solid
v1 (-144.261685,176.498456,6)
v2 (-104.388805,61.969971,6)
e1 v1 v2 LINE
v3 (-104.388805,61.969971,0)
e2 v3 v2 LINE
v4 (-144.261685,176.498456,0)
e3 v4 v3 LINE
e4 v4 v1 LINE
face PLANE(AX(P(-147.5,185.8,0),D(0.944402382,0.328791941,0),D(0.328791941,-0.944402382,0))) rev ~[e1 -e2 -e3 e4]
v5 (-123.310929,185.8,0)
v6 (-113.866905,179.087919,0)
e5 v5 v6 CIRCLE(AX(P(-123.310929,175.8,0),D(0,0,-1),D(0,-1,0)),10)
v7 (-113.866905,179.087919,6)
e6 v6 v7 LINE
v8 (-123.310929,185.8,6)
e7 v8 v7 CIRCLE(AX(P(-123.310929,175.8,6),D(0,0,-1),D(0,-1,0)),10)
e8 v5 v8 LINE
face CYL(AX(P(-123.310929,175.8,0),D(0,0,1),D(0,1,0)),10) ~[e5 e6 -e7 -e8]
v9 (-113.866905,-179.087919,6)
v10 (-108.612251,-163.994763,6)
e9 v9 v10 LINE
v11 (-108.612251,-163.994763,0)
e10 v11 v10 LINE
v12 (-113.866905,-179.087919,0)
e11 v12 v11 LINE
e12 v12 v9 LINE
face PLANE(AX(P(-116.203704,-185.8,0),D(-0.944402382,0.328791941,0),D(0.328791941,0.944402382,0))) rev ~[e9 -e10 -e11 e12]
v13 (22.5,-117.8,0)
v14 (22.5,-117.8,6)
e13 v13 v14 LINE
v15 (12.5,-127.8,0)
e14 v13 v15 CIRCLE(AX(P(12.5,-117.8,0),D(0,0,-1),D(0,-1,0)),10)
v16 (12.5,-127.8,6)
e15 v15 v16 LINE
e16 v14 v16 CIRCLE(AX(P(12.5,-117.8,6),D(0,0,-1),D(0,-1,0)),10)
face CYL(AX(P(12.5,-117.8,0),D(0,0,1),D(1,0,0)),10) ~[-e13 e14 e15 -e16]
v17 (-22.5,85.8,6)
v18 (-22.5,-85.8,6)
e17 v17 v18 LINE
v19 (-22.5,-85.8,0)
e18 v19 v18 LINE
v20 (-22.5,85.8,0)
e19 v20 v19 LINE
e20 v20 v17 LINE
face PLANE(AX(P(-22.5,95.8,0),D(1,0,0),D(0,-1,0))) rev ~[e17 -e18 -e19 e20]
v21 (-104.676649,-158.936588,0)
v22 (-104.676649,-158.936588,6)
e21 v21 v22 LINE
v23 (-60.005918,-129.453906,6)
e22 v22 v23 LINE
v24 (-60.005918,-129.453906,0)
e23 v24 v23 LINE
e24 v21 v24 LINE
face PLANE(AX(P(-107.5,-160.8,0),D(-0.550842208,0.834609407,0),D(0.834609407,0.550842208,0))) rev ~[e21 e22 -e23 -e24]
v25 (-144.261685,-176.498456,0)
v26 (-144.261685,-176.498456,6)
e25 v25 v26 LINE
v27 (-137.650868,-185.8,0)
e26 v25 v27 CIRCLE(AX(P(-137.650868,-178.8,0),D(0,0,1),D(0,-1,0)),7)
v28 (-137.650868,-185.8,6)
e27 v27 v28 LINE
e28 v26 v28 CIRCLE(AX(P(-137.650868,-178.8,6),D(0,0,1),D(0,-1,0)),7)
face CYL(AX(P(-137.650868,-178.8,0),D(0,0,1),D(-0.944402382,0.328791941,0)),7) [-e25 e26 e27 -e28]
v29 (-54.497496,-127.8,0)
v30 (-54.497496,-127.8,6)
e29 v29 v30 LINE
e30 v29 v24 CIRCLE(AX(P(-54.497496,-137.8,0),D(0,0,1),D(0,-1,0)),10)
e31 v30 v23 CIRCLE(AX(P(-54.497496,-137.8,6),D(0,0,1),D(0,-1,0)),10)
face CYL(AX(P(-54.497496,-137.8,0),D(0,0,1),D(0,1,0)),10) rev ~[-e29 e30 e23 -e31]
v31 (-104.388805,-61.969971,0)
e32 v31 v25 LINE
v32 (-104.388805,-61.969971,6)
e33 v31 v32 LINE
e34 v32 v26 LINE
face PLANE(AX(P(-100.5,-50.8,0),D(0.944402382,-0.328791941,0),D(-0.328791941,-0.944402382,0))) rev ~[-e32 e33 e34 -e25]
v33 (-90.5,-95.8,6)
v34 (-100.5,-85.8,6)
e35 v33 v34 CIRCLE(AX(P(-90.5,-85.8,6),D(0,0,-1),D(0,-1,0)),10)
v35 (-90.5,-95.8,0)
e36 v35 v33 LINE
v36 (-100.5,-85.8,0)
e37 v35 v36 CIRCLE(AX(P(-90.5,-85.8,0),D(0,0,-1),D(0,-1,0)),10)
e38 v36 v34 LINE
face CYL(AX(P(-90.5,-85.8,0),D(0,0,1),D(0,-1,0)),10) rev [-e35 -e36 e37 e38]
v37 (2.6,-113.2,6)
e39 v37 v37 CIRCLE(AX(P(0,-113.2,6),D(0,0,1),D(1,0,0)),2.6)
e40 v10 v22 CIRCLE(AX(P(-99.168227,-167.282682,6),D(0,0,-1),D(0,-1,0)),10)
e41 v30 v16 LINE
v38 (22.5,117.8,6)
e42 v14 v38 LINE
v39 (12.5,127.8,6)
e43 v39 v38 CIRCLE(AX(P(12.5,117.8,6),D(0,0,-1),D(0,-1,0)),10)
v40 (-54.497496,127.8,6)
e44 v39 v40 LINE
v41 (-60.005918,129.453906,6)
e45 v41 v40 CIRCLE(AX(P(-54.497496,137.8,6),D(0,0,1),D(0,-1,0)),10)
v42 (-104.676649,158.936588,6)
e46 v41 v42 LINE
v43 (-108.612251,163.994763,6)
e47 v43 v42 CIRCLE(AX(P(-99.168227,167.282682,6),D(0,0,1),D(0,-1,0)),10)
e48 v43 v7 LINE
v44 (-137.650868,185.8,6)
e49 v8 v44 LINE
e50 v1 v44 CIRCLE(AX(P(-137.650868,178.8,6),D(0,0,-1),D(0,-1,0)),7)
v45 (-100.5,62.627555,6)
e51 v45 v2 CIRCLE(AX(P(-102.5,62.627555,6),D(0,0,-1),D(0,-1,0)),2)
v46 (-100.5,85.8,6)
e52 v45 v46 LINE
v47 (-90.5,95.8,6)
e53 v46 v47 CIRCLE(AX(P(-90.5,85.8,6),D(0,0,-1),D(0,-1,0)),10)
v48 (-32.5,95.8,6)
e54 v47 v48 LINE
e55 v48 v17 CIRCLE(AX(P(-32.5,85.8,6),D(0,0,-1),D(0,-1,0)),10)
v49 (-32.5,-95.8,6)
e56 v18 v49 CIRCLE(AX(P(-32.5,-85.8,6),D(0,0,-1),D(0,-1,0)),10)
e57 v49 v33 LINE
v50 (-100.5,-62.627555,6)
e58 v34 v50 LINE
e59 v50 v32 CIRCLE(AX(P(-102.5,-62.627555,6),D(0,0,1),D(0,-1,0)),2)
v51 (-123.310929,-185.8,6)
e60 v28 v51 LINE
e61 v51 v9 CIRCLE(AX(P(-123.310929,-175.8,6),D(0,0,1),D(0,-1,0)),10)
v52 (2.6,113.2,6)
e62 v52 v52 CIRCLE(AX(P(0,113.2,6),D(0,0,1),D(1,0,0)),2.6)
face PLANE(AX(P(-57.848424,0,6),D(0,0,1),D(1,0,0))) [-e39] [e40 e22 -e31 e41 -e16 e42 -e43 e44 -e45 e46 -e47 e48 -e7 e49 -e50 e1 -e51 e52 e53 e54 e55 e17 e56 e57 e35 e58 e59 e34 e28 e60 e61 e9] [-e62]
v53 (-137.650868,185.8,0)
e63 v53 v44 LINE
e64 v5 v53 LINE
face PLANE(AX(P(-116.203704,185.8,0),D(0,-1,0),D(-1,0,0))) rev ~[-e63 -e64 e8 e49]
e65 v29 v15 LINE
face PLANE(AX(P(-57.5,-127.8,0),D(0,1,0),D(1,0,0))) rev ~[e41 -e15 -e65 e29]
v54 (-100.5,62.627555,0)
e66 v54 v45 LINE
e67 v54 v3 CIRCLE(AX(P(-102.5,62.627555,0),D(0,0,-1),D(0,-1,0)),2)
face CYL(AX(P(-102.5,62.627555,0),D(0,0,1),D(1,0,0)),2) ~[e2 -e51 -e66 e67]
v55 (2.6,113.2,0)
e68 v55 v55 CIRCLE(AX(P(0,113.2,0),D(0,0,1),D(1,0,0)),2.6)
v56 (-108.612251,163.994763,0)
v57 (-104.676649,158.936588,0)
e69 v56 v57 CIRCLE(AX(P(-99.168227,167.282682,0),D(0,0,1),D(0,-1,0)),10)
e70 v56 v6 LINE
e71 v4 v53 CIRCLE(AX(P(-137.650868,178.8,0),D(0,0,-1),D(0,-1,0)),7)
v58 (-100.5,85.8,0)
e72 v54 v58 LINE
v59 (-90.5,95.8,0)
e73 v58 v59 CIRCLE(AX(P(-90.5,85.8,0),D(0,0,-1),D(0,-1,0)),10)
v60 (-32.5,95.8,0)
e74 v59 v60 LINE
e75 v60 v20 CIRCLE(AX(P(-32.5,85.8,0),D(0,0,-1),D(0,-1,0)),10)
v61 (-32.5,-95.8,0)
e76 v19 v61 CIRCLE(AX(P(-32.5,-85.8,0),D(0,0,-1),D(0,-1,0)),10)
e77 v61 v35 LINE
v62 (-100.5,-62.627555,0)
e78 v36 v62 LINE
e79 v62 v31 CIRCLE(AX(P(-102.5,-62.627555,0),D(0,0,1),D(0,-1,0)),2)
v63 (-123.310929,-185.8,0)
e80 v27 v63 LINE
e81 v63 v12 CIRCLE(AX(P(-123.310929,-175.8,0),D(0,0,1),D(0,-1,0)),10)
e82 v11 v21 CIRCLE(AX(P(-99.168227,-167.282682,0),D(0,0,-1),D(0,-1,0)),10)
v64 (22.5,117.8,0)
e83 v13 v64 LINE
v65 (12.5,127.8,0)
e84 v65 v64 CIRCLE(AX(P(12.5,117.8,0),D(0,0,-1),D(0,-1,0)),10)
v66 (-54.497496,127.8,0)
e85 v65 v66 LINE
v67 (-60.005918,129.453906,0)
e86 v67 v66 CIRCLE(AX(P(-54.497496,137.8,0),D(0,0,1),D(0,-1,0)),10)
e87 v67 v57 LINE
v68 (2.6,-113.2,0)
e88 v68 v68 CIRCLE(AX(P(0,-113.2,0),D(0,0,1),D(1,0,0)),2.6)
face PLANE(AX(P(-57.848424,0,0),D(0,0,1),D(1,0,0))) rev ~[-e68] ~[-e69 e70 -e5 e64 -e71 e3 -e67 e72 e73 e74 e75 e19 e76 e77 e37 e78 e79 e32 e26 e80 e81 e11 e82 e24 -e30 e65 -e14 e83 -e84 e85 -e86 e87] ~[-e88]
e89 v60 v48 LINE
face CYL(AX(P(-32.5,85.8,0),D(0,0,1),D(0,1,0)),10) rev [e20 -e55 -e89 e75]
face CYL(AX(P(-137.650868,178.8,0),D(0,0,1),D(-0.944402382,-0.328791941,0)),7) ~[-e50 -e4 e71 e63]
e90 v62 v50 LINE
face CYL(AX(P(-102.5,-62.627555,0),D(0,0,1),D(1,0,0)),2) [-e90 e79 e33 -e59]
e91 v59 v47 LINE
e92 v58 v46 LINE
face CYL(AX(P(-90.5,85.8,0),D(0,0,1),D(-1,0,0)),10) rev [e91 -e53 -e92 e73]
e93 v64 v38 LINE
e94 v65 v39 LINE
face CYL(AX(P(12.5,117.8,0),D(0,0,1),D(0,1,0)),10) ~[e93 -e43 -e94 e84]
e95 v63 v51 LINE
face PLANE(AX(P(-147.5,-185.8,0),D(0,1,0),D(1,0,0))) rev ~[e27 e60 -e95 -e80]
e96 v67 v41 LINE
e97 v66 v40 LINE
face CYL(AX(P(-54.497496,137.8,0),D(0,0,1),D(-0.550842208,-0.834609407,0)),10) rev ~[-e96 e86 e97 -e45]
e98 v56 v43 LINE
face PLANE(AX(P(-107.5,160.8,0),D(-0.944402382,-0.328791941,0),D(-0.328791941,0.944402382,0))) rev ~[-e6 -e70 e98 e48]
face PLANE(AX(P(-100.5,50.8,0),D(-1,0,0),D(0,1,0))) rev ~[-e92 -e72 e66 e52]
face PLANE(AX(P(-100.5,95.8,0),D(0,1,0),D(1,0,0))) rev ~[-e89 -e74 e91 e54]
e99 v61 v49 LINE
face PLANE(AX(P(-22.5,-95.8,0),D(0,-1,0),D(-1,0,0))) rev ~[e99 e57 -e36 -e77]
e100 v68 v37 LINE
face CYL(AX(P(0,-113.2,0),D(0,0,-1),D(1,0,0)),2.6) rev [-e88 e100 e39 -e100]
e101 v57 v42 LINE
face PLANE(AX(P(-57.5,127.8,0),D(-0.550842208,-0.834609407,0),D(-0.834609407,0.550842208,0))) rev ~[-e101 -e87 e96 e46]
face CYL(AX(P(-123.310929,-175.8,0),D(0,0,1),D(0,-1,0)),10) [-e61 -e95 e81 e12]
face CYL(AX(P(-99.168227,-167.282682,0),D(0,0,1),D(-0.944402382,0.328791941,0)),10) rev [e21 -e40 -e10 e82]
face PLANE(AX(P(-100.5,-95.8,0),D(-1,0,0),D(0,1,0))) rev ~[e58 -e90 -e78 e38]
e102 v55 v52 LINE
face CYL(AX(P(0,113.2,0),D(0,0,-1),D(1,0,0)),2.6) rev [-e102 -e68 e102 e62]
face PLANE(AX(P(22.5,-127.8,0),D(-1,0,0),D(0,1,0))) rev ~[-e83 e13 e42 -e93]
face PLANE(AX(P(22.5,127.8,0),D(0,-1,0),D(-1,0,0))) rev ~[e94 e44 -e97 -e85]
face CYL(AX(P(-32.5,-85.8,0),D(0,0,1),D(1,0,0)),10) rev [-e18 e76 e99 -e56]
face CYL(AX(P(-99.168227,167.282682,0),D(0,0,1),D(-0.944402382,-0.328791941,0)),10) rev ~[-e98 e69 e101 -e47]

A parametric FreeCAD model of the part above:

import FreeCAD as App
import Part
import Sketcher


def edges_at(feature, points):
    """Names of the edges that pass closest to the given points."""
    edges = feature.Shape.Edges
    near = lambda p: min(range(len(edges)), key=lambda i: edges[i].distToShape(Part.Vertex(*p))[0])
    return sorted({f"Edge{near(p) + 1}" for p in points})

doc = App.newDocument("Part")
body = doc.addObject("PartDesign::Body", "Body")

# Sketch on XY plane
sketch1 = body.newObject("Sketcher::SketchObject", "Sketch")
sketch1.AttachmentSupport = (doc.getObject("XY_Plane"), [""])
sketch1.MapMode = "FlatFace"
sketch1.addGeometry([
    Part.LineSegment(App.Vector(-100.5, 95.8, 0), App.Vector(-22.5, 95.8, 0)),  # 0
    Part.LineSegment(App.Vector(-22.5, 95.8, 0), App.Vector(-22.5, -95.8, 0)),  # 1
    Part.LineSegment(App.Vector(-22.5, -95.8, 0), App.Vector(-100.5, -95.8, 0)),  # 2
    Part.LineSegment(App.Vector(-100.5, -95.8, 0), App.Vector(-100.5, -50.8, 0)),  # 3
    Part.LineSegment(App.Vector(-100.5, -50.8, 0), App.Vector(-147.5, -185.8, 0)),  # 4
    Part.LineSegment(App.Vector(-147.5, -185.8, 0), App.Vector(-116.2, -185.8, 0)),  # 5
    Part.LineSegment(App.Vector(-116.2, -185.8, 0), App.Vector(-107.5, -160.8, 0)),  # 6
    Part.LineSegment(App.Vector(-107.5, -160.8, 0), App.Vector(-57.5, -127.8, 0)),  # 7
    Part.LineSegment(App.Vector(-57.5, -127.8, 0), App.Vector(22.5, -127.8, 0)),  # 8
    Part.LineSegment(App.Vector(22.5, -127.8, 0), App.Vector(22.5, 127.8, 0)),  # 9
    Part.LineSegment(App.Vector(22.5, 127.8, 0), App.Vector(-57.5, 127.8, 0)),  # 10
    Part.LineSegment(App.Vector(-57.5, 127.8, 0), App.Vector(-107.5, 160.8, 0)),  # 11
    Part.LineSegment(App.Vector(-107.5, 160.8, 0), App.Vector(-116.2, 185.8, 0)),  # 12
    Part.LineSegment(App.Vector(-116.2, 185.8, 0), App.Vector(-147.5, 185.8, 0)),  # 13
    Part.LineSegment(App.Vector(-147.5, 185.8, 0), App.Vector(-100.5, 50.8, 0)),  # 14
    Part.LineSegment(App.Vector(-100.5, 50.8, 0), App.Vector(-100.5, 95.8, 0)),  # 15
    Part.Circle(App.Vector(0, -113.2, 0), App.Vector(0, 0, 1), 2.6),  # 16
    Part.Circle(App.Vector(0, 113.2, 0), App.Vector(0, 0, 1), 2.6),  # 17
], False)
sketch1.addConstraint([
    Sketcher.Constraint("Coincident", 0, 2, 1, 1),
    Sketcher.Constraint("Coincident", 1, 2, 2, 1),
    Sketcher.Constraint("Coincident", 2, 2, 3, 1),
    Sketcher.Constraint("Coincident", 3, 2, 4, 1),
    Sketcher.Constraint("Coincident", 4, 2, 5, 1),
    Sketcher.Constraint("Coincident", 5, 2, 6, 1),
    Sketcher.Constraint("Coincident", 6, 2, 7, 1),
    Sketcher.Constraint("Coincident", 7, 2, 8, 1),
    Sketcher.Constraint("Coincident", 8, 2, 9, 1),
    Sketcher.Constraint("Coincident", 9, 2, 10, 1),
    Sketcher.Constraint("Coincident", 10, 2, 11, 1),
    Sketcher.Constraint("Coincident", 11, 2, 12, 1),
    Sketcher.Constraint("Coincident", 12, 2, 13, 1),
    Sketcher.Constraint("Coincident", 13, 2, 14, 1),
    Sketcher.Constraint("Coincident", 14, 2, 15, 1),
    Sketcher.Constraint("Coincident", 15, 2, 0, 1),
    Sketcher.Constraint("Horizontal", 0),
    Sketcher.Constraint("Vertical", 1),
    Sketcher.Constraint("Horizontal", 2),
    Sketcher.Constraint("Vertical", 3),
    Sketcher.Constraint("Horizontal", 5),
    Sketcher.Constraint("Horizontal", 8),
    Sketcher.Constraint("Vertical", 9),
    Sketcher.Constraint("Horizontal", 10),
    Sketcher.Constraint("Horizontal", 13),
    Sketcher.Constraint("Vertical", 15),
    Sketcher.Constraint("Equal", 16, 17),
    Sketcher.Constraint("Symmetric", 16, 3, 17, 3, -1, 1),
    Sketcher.Constraint("Symmetric", 7, 2, 10, 2, -1),
    Sketcher.Constraint("Symmetric", 6, 2, 11, 2, -1),
    Sketcher.Constraint("Symmetric", 5, 2, 12, 2, -1),
    Sketcher.Constraint("Symmetric", 3, 2, 14, 2, -1),
    Sketcher.Constraint("PointOnObject", 16, 3, -2),
    Sketcher.Constraint("Parallel", 4, 6),
    Sketcher.Constraint("Parallel", 12, 14),
    Sketcher.Constraint("Equal", 3, 15),
    Sketcher.Constraint("Diameter", 16, 5.2),
    Sketcher.Constraint("DistanceX", 0, 1, 0, 2, 78.0),
    Sketcher.Constraint("DistanceX", 8, 1, 8, 2, 80.0),
    Sketcher.Constraint("DistanceY", 3, 1, 3, 2, 45.0),
    Sketcher.Constraint("DistanceY", 1, 2, 1, 1, 191.6),
    Sketcher.Constraint("DistanceY", 9, 1, 9, 2, 255.6),
    Sketcher.Constraint("DistanceY", 16, 3, 0, 2, 209.0),
    Sketcher.Constraint("DistanceX", 4, 2, 2, 2, 47.0),
    Sketcher.Constraint("DistanceY", 4, 2, 2, 2, 90.0),
    Sketcher.Constraint("DistanceY", 5, 2, 6, 2, 25.0),
    Sketcher.Constraint("DistanceX", 4, 2, 6, 2, 40.0),
    Sketcher.Constraint("DistanceX", 7, 2, 1, 2, 35.0),
    Sketcher.Constraint("DistanceX", 0, 2, -1, 1, 22.5),
])
pad1 = body.newObject("PartDesign::Pad", "Pad")
pad1.Profile = sketch1
pad1.Length = 6
doc.recompute()

fillet = body.newObject("PartDesign::Fillet", "Fillet")
fillet.Base = (pad1, edges_at(pad1, [(-100.5, -50.8, 3), (-100.5, 50.8, 3)]))
fillet.Radius = 2
doc.recompute()

fillet2 = body.newObject("PartDesign::Fillet", "Fillet001")
fillet2.Base = (fillet, edges_at(fillet, [
    (-57.5, 127.8, 3),
    (22.5, 127.8, 3),
    (22.5, -127.8, 3),
    (-57.5, -127.8, 3),
    (-107.5, -160.8, 3),
    (-116.204, -185.8, 3),
    (-100.5, -95.8, 3),
    (-22.5, -95.8, 3),
    (-22.5, 95.8, 3),
    (-100.5, 95.8, 3),
    (-116.204, 185.8, 3),
    (-107.5, 160.8, 3),
]))
fillet2.Radius = 10
doc.recompute()

fillet3 = body.newObject("PartDesign::Fillet", "Fillet002")
fillet3.Base = (fillet2, edges_at(fillet2, [(-147.5, -185.8, 3), (-147.5, 185.8, 3)]))
fillet3.Radius = 7

doc.recompute()
